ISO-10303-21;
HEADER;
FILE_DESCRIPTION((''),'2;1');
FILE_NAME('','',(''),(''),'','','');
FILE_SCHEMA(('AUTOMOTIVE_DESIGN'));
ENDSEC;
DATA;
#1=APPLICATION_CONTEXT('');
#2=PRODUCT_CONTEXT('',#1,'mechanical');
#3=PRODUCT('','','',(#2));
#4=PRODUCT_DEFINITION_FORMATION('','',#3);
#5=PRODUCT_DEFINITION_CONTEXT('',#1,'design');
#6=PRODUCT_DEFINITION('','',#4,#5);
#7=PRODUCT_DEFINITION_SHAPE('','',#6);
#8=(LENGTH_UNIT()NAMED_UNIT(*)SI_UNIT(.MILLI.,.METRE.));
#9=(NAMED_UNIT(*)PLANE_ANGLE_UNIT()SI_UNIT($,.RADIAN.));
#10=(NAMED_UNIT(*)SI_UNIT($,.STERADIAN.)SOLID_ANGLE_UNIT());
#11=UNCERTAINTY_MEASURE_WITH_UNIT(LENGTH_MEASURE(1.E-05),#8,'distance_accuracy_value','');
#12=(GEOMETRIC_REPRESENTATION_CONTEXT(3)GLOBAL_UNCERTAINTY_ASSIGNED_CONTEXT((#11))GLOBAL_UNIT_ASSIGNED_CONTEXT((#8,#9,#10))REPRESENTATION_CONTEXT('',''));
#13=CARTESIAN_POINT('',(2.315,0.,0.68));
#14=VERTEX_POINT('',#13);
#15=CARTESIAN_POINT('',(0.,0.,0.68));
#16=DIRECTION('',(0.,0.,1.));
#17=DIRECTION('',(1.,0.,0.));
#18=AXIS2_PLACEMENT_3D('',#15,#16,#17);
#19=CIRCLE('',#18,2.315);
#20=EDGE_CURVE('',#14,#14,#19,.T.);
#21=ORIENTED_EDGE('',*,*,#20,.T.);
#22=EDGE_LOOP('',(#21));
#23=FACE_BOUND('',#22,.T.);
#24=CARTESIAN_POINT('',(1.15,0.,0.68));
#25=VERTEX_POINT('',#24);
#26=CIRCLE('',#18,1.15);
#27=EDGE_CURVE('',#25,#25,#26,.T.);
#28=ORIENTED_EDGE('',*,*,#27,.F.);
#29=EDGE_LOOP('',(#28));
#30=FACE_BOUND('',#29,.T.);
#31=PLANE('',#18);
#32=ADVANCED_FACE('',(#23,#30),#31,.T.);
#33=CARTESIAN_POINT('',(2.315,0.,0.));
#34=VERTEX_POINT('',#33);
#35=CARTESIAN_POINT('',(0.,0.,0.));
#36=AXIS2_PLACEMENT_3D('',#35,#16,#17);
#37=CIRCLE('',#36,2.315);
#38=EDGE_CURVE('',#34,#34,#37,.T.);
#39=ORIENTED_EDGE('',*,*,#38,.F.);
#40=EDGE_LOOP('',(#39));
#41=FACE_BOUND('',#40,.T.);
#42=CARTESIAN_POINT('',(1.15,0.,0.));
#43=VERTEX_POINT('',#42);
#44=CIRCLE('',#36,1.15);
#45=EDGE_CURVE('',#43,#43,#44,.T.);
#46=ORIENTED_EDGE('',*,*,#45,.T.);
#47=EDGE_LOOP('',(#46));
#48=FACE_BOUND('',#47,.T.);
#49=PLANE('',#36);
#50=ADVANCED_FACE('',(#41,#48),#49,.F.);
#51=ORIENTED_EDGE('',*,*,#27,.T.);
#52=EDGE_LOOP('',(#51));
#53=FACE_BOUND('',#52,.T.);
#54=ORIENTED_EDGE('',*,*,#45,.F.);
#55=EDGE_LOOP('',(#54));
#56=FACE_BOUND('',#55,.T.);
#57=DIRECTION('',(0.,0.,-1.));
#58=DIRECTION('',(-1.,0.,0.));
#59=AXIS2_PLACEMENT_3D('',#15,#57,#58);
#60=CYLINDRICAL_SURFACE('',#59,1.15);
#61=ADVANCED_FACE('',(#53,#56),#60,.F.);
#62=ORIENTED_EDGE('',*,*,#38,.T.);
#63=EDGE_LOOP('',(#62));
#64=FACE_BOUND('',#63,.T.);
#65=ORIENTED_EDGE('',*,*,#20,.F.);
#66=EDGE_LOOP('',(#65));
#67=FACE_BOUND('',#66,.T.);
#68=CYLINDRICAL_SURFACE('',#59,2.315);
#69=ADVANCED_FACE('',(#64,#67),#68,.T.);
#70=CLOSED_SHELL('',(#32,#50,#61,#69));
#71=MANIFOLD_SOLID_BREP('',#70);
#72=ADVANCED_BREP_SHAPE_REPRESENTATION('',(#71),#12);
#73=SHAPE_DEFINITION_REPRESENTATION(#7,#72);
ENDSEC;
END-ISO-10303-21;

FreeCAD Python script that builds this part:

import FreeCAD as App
import Part
import Sketcher
from FreeCAD import Vector
Q = App.Units.Quantity

doc = App.newDocument("Part")
params = doc.addObject("Spreadsheet::Sheet", "Params")
for row, (alias, value) in enumerate([
    ("sketch1_diameter", "2.3 mm"),
    ("sketch1_diameter2", "4.63 mm"),
    ("pad1_length", "0.68 mm"),
], start=1):
    params.set(f"A{row}", alias)
    params.set(f"B{row}", "=" + value)
    params.setAlias(f"B{row}", alias)

body = doc.addObject("PartDesign::Body", "Body")

# Sketch on XY plane
sketch1 = doc.addObject("Sketcher::SketchObject", "Sketch")
body.addObject(sketch1)
sketch1.AttachmentSupport = (doc.XY_Plane, [""])
sketch1.MapMode = "FlatFace"
sketch1.addGeometry(Part.Circle(Vector(0, 0, 0), Vector(0, 0, 1), 2.3), False)
sketch1.addGeometry(Part.Circle(Vector(0, 0, 0), Vector(0, 0, 1), 1.1), False)
sketch1.addConstraint(Sketcher.Constraint("Coincident", 0, 3, -1, 1))
sketch1.addConstraint(Sketcher.Constraint("Coincident", 1, 3, -1, 1))
sketch1.addConstraint(Sketcher.Constraint("Diameter", 1, Q("2.3 mm")))
sketch1.addConstraint(Sketcher.Constraint("Diameter", 0, Q("4.63 mm")))
sketch1.setExpression("Constraints[2]", "Params.sketch1_diameter")
sketch1.setExpression("Constraints[3]", "Params.sketch1_diameter2")
pad1 = doc.addObject("PartDesign::Pad", "Pad")
body.addObject(pad1)
pad1.Profile = sketch1
pad1.setExpression("Length", "Params.pad1_length")

doc.recompute()
